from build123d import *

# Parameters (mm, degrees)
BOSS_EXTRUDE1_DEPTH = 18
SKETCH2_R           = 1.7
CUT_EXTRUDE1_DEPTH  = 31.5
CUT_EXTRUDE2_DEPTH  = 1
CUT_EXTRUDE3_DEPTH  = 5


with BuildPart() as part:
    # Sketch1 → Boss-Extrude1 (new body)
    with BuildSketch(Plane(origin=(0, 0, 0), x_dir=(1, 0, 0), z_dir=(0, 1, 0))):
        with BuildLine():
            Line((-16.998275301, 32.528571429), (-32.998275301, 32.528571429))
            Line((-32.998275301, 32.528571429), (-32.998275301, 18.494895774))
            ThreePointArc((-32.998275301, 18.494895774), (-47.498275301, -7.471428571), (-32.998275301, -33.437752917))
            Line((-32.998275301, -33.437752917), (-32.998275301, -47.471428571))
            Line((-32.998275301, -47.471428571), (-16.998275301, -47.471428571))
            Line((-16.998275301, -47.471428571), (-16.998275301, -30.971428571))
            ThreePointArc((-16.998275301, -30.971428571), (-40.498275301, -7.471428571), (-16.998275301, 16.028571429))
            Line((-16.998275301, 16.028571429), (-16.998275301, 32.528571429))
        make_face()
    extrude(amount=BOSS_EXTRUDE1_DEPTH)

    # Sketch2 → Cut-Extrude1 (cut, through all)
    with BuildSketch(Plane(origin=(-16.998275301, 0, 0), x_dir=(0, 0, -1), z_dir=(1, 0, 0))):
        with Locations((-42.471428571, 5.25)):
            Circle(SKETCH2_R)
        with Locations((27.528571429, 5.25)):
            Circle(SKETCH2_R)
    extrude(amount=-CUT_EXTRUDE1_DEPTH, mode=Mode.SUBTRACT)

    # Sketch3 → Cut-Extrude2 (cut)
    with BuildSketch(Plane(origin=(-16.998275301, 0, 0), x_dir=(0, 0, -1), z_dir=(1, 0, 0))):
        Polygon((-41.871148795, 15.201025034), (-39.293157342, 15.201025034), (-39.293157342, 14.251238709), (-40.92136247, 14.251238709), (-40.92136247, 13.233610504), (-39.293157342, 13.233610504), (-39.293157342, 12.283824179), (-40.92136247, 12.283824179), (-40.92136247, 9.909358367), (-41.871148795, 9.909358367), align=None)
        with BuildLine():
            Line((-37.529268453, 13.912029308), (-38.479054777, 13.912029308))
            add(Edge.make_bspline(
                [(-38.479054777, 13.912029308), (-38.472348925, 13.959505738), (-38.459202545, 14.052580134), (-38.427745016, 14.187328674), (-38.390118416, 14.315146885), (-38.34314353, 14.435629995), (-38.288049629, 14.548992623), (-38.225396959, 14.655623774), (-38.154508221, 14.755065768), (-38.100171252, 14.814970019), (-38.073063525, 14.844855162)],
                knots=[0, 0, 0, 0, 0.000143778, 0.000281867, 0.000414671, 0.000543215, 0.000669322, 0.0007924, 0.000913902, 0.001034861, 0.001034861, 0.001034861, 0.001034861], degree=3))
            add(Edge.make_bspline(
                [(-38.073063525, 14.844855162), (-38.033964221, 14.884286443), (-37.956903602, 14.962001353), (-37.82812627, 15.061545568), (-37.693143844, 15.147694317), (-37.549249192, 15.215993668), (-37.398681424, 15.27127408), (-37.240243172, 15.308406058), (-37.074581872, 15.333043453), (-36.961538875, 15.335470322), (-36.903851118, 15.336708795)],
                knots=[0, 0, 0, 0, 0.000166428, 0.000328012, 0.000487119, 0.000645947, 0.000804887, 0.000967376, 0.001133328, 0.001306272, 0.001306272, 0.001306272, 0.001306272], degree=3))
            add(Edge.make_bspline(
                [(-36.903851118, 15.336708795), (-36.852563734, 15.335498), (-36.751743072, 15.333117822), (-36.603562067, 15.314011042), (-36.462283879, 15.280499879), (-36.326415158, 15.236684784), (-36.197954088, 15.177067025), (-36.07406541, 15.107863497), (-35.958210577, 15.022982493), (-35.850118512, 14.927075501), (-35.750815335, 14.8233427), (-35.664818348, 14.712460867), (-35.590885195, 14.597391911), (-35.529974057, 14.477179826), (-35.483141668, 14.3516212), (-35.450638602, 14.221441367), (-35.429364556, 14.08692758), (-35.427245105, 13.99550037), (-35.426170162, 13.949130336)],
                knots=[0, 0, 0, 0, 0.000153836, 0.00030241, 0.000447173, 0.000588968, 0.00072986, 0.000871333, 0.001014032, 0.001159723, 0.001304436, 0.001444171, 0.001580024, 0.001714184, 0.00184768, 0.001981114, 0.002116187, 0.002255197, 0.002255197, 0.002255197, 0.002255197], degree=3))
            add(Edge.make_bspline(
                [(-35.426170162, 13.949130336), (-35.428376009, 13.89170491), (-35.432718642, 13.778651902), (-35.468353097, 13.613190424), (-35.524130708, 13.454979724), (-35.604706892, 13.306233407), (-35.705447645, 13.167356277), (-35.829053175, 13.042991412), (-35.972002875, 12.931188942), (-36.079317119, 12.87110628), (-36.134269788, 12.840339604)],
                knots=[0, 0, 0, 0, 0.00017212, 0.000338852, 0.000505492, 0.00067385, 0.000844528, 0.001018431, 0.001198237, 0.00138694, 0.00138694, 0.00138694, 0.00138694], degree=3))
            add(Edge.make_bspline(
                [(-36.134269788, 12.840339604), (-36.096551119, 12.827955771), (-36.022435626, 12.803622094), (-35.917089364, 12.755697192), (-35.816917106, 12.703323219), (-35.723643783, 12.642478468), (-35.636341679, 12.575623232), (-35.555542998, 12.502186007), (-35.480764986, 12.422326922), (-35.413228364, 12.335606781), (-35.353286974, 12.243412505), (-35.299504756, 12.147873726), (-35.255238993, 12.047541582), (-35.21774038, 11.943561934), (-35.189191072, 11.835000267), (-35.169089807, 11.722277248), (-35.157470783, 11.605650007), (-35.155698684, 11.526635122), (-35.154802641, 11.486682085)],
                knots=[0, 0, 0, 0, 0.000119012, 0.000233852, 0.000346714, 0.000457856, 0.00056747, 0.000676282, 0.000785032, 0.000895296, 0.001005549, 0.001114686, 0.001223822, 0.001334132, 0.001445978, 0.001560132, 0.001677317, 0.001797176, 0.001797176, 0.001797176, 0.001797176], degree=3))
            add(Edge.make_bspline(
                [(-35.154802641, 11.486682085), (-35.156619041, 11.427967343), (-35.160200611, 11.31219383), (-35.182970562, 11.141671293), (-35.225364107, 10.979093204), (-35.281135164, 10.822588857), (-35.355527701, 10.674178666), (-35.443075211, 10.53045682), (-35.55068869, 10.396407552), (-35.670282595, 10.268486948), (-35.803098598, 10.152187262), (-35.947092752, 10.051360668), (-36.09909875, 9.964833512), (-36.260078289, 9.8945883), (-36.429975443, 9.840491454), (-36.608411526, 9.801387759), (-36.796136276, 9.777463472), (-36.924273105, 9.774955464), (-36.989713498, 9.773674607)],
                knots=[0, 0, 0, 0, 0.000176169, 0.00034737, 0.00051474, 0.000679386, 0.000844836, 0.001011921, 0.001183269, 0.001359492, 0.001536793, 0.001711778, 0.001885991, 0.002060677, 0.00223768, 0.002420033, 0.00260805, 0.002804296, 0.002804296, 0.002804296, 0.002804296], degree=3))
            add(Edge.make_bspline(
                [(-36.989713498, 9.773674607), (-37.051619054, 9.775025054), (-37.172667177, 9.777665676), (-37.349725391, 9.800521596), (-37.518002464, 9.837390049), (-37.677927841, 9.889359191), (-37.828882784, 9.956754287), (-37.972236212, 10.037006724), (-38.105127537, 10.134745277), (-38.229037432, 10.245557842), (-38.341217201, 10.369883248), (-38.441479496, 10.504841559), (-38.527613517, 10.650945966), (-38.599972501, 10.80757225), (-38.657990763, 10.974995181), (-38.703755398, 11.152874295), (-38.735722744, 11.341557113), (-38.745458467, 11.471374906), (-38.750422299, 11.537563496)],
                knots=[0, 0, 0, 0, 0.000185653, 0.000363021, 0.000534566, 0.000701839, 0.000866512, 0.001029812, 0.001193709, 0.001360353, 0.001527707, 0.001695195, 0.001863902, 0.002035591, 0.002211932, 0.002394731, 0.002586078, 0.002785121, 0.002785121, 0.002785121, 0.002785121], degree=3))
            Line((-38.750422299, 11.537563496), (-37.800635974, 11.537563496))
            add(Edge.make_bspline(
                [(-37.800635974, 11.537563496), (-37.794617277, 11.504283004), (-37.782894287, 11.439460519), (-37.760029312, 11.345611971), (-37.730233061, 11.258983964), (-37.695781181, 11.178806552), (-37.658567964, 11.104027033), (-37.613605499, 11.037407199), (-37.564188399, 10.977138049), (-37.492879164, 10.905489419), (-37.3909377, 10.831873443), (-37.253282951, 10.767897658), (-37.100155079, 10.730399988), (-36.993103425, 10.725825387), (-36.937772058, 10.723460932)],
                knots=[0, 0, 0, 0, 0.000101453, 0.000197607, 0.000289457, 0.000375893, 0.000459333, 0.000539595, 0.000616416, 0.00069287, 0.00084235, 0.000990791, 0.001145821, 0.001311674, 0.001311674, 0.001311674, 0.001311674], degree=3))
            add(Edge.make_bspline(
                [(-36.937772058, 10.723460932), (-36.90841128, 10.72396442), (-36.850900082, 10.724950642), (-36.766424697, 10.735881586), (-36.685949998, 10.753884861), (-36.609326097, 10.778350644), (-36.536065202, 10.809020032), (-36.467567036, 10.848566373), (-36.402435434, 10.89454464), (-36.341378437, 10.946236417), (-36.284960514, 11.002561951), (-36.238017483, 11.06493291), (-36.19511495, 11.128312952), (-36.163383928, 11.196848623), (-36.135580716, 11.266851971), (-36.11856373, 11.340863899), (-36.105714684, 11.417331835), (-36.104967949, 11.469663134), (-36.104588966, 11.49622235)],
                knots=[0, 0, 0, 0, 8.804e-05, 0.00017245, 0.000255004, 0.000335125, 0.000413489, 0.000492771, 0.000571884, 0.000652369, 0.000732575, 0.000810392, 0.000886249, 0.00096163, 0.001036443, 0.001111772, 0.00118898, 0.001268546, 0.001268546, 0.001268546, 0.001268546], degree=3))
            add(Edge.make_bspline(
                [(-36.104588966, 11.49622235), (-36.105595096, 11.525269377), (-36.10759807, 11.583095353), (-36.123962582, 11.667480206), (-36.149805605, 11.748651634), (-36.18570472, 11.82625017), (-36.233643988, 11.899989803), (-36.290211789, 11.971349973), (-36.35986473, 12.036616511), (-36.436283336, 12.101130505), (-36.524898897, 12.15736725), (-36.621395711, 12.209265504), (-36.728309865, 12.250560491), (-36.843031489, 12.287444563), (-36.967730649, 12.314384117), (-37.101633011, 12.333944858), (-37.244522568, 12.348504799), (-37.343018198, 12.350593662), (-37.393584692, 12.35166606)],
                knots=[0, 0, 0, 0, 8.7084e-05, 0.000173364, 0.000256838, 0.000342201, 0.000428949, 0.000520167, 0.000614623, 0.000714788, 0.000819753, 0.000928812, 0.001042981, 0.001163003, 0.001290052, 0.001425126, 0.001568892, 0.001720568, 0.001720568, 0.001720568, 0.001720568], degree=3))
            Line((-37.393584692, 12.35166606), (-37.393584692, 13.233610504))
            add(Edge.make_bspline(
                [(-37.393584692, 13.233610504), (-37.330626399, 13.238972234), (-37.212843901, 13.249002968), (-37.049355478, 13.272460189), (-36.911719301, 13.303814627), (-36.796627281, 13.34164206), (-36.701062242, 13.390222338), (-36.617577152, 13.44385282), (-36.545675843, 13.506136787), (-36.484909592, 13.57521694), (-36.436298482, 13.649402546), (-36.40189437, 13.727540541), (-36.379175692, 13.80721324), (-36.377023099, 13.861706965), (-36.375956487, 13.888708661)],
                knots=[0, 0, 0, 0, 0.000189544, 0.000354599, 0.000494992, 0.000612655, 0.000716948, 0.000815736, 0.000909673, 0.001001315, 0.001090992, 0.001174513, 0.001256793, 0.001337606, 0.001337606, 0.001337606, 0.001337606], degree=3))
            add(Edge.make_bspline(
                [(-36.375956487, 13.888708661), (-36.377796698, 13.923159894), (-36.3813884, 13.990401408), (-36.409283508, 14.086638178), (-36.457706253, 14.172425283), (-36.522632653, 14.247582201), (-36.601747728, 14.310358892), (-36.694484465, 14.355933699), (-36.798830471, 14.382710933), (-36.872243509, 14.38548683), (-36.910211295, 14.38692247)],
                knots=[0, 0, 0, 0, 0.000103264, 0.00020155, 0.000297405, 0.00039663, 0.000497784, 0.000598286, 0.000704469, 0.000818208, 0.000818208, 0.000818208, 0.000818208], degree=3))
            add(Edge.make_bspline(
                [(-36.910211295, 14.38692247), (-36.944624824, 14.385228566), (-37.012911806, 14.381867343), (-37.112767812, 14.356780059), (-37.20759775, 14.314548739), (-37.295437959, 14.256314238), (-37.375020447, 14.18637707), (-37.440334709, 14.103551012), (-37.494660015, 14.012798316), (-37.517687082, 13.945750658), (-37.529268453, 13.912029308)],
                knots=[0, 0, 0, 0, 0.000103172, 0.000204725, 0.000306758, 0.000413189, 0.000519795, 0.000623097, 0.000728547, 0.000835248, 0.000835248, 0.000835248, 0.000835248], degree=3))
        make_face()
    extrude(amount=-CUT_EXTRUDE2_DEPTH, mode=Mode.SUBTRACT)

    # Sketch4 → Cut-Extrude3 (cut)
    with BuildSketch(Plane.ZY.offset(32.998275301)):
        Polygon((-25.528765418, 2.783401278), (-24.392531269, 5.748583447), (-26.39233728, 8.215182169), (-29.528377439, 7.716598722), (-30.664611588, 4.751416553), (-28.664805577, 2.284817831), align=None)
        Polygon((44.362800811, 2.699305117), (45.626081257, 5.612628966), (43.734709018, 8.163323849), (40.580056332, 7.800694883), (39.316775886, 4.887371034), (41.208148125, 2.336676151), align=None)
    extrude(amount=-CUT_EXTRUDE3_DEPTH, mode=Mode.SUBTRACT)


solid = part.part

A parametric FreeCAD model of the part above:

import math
import FreeCAD as App
import Part
import Sketcher


def add_polygon(sketch, points):
    """Adds a closed chain of lines whose ends are joined by coincident constraints."""
    first, n = sketch.GeometryCount, len(points)
    for a, b in zip(points, points[1:] + points[:1]):
        sketch.addGeometry(Part.LineSegment(App.Vector(*a, 0), App.Vector(*b, 0)), False)
    for i in range(n):
        sketch.addConstraint(Sketcher.Constraint("Coincident", first + i, 2, first + (i + 1) % n, 1))

doc = App.newDocument("Part")
body = doc.addObject("PartDesign::Body", "Body")

sketch1 = body.newObject("Sketcher::SketchObject", "Sketch")
sketch1.AttachmentSupport = (doc.getObject("XZ_Plane"), [""])
sketch1.MapMode = "FlatFace"
sketch1.addGeometry([
    Part.LineSegment(App.Vector(-17, -33, 0), App.Vector(-33, -33, 0)),
    Part.LineSegment(App.Vector(-33, -33, 0), App.Vector(-33, -18, 0)),
    Part.ArcOfCircle(Part.Circle(App.Vector(-17, 7, 0), App.Vector(0, 0, 1), 31), math.radians(122), math.radians(238)),
    Part.LineSegment(App.Vector(-33, 33, 0), App.Vector(-33, 47, 0)),
    Part.LineSegment(App.Vector(-33, 47, 0), App.Vector(-17, 47, 0)),
    Part.LineSegment(App.Vector(-17, 47, 0), App.Vector(-17, 31, 0)),
    Part.ArcOfCircle(Part.Circle(App.Vector(-17, 7, 0), App.Vector(0, 0, 1), 24), math.radians(90), math.radians(270)),
    Part.LineSegment(App.Vector(-17, -16, 0), App.Vector(-17, -33, 0)),
], False)
sketch1.addConstraint([
    Sketcher.Constraint("Coincident", 0, 2, 1, 1),
    Sketcher.Constraint("Coincident", 1, 2, 2, 2),
    Sketcher.Constraint("Coincident", 2, 1, 3, 1),
    Sketcher.Constraint("Coincident", 3, 2, 4, 1),
    Sketcher.Constraint("Coincident", 4, 2, 5, 1),
    Sketcher.Constraint("Coincident", 5, 2, 6, 1),
    Sketcher.Constraint("Coincident", 6, 2, 7, 1),
    Sketcher.Constraint("Coincident", 7, 2, 0, 1),
    Sketcher.Constraint("Horizontal", 0),
    Sketcher.Constraint("Vertical", 1),
    Sketcher.Constraint("Vertical", 3),
    Sketcher.Constraint("Horizontal", 4),
    Sketcher.Constraint("Vertical", 5),
    Sketcher.Constraint("Vertical", 7),
    Sketcher.Constraint("Coincident", 6, 3, 2, 3),
    Sketcher.Constraint("Vertical", 1, 2, 2, 1),
    Sketcher.Constraint("Vertical", 6, 3, 4, 2),
    Sketcher.Constraint("Vertical", 5, 2, 6, 2),
    Sketcher.Constraint("Equal", 1, 3),
    Sketcher.Constraint("Radius", 2, 30.5),
    Sketcher.Constraint("Radius", 6, 23.5),
    Sketcher.Constraint("DistanceX", 0, 2, 0, 1, 16.0),
    Sketcher.Constraint("DistanceY", 5, 2, 5, 1, 16.5),
    Sketcher.Constraint("DistanceY", -1, 1, 2, 3, 7.471429),
    Sketcher.Constraint("DistanceX", 2, 3, -1, 1, 16.998275),
])
pad1 = body.newObject("PartDesign::Pad", "Pad")
pad1.Profile = sketch1
pad1.Length = 18
pad1.Reversed = True

sketch2 = body.newObject("Sketcher::SketchObject", "Sketch001")
sketch2.AttachmentSupport = (doc.getObject("YZ_Plane"), [""])
sketch2.MapMode = "FlatFace"
sketch2.AttachmentOffset = App.Placement(App.Vector(0, 0, -16.998275), App.Rotation())
sketch2.addGeometry([
    Part.Circle(App.Vector(5.2, 42.5, 0), App.Vector(0, 0, 1), 1.7),
    Part.Circle(App.Vector(5.2, -27.5, 0), App.Vector(0, 0, 1), 1.7),
], False)
sketch2.addConstraint([
    Sketcher.Constraint("Equal", 0, 1),
    Sketcher.Constraint("Vertical", 0, 3, 1, 3),
    Sketcher.Constraint("Diameter", 0, 3.4),
    Sketcher.Constraint("DistanceY", 1, 3, 0, 3, 70.0),
    Sketcher.Constraint("DistanceX", -1, 1, 0, 3, 5.25),
    Sketcher.Constraint("DistanceY", -1, 1, 0, 3, 42.471429),
])
pocket1 = body.newObject("PartDesign::Pocket", "Pocket")
pocket1.Profile = sketch2
pocket1.Type = "ThroughAll"

sketch3 = body.newObject("Sketcher::SketchObject", "Sketch002")
sketch3.AttachmentSupport = (doc.getObject("YZ_Plane"), [""])
sketch3.MapMode = "FlatFace"
sketch3.AttachmentOffset = App.Placement(App.Vector(0, 0, -16.998275), App.Rotation())
add_polygon(sketch3, [(15.201025, 39.293157), (15.201025, 41.871149), (9.909358, 41.871149), (9.909358, 40.921362), (12.283824, 40.921362), (12.283824, 39.293157), (13.233611, 39.293157), (13.233611, 40.921362), (14.251239, 40.921362), (14.251239, 39.293157)])
sketch3.addGeometry(Part.LineSegment(App.Vector(13.912029, 38.479055, 0), App.Vector(13.912029, 37.529268, 0)), False)
sketch3.addGeometry(Part.BSplineCurve([App.Vector(14.386922, 36.910211, 0), App.Vector(14.385229, 36.944625, 0), App.Vector(14.381867, 37.012912, 0), App.Vector(14.35678, 37.112768, 0), App.Vector(14.314549, 37.207598, 0), App.Vector(14.256314, 37.295438, 0), App.Vector(14.186377, 37.37502, 0), App.Vector(14.103551, 37.440335, 0), App.Vector(14.012798, 37.49466, 0), App.Vector(13.945751, 37.517687, 0), App.Vector(13.912029, 37.529268, 0)], [4, 1, 1, 1, 1, 1, 1, 1, 4], [0, 0.000103172, 0.000204725, 0.000306758, 0.000413189, 0.000519795, 0.000623097, 0.000728547, 0.000835248], False, 3, [1, 1, 1, 1, 1, 1, 1, 1, 1, 1, 1], False), False)
sketch3.addGeometry(Part.BSplineCurve([App.Vector(13.888709, 36.375956, 0), App.Vector(13.92316, 36.377797, 0), App.Vector(13.990401, 36.381388, 0), App.Vector(14.086638, 36.409284, 0), App.Vector(14.172425, 36.457706, 0), App.Vector(14.247582, 36.522633, 0), App.Vector(14.310359, 36.601748, 0), App.Vector(14.355934, 36.694484, 0), App.Vector(14.382711, 36.79883, 0), App.Vector(14.385487, 36.872244, 0), App.Vector(14.386922, 36.910211, 0)], [4, 1, 1, 1, 1, 1, 1, 1, 4], [0, 0.000103264, 0.00020155, 0.000297405, 0.00039663, 0.000497784, 0.000598286, 0.000704469, 0.000818208], False, 3, [1, 1, 1, 1, 1, 1, 1, 1, 1, 1, 1], False), False)
sketch3.addGeometry(Part.BSplineCurve([App.Vector(13.233611, 37.393585, 0), App.Vector(13.238972, 37.330626, 0), App.Vector(13.249003, 37.212844, 0), App.Vector(13.27246, 37.049355, 0), App.Vector(13.303815, 36.911719, 0), App.Vector(13.341642, 36.796627, 0), App.Vector(13.390222, 36.701062, 0), App.Vector(13.443853, 36.617577, 0), App.Vector(13.506137, 36.545676, 0), App.Vector(13.575217, 36.48491, 0), App.Vector(13.649403, 36.436298, 0), App.Vector(13.727541, 36.401894, 0), App.Vector(13.807213, 36.379176, 0), App.Vector(13.861707, 36.377023, 0), App.Vector(13.888709, 36.375956, 0)], [4, 1, 1, 1, 1, 1, 1, 1, 1, 1, 1, 1, 4], [0, 0.000189544, 0.000354599, 0.000494992, 0.000612655, 0.000716948, 0.000815736, 0.000909673, 0.001001315, 0.001090992, 0.001174513, 0.001256793, 0.001337606], False, 3, [1, 1, 1, 1, 1, 1, 1, 1, 1, 1, 1, 1, 1, 1, 1], False), False)
sketch3.addGeometry(Part.LineSegment(App.Vector(13.233611, 37.393585, 0), App.Vector(12.351666, 37.393585, 0)), False)
sketch3.addGeometry(Part.BSplineCurve([App.Vector(11.496222, 36.104589, 0), App.Vector(11.525269, 36.105595, 0), App.Vector(11.583095, 36.107598, 0), App.Vector(11.66748, 36.123963, 0), App.Vector(11.748652, 36.149806, 0), App.Vector(11.82625, 36.185705, 0), App.Vector(11.89999, 36.233644, 0), App.Vector(11.97135, 36.290212, 0), App.Vector(12.036617, 36.359865, 0), App.Vector(12.101131, 36.436283, 0), App.Vector(12.157367, 36.524899, 0), App.Vector(12.209266, 36.621396, 0), App.Vector(12.25056, 36.72831, 0), App.Vector(12.287445, 36.843031, 0), App.Vector(12.314384, 36.967731, 0), App.Vector(12.333945, 37.101633, 0), App.Vector(12.348505, 37.244523, 0), App.Vector(12.350594, 37.343018, 0), App.Vector(12.351666, 37.393585, 0)], [4, 1, 1, 1, 1, 1, 1, 1, 1, 1, 1, 1, 1, 1, 1, 1, 4], [0, 0.000087084, 0.000173364, 0.000256838, 0.000342201, 0.000428949, 0.000520167, 0.000614623, 0.000714788, 0.000819753, 0.000928812, 0.001042981, 0.001163003, 0.001290052, 0.001425126, 0.001568892, 0.001720568], False, 3, [1, 1, 1, 1, 1, 1, 1, 1, 1, 1, 1, 1, 1, 1, 1, 1, 1, 1, 1], False), False)
sketch3.addGeometry(Part.BSplineCurve([App.Vector(10.723461, 36.937772, 0), App.Vector(10.723964, 36.908411, 0), App.Vector(10.724951, 36.8509, 0), App.Vector(10.735882, 36.766425, 0), App.Vector(10.753885, 36.68595, 0), App.Vector(10.778351, 36.609326, 0), App.Vector(10.80902, 36.536065, 0), App.Vector(10.848566, 36.467567, 0), App.Vector(10.894545, 36.402435, 0), App.Vector(10.946236, 36.341378, 0), App.Vector(11.002562, 36.284961, 0), App.Vector(11.064933, 36.238017, 0), App.Vector(11.128313, 36.195115, 0), App.Vector(11.196849, 36.163384, 0), App.Vector(11.266852, 36.135581, 0), App.Vector(11.340864, 36.118564, 0), App.Vector(11.417332, 36.105715, 0), App.Vector(11.469663, 36.104968, 0), App.Vector(11.496222, 36.104589, 0)], [4, 1, 1, 1, 1, 1, 1, 1, 1, 1, 1, 1, 1, 1, 1, 1, 4], [0, 0.00008804, 0.00017245, 0.000255004, 0.000335125, 0.000413489, 0.000492771, 0.000571884, 0.000652369, 0.000732575, 0.000810392, 0.000886249, 0.00096163, 0.001036443, 0.001111772, 0.00118898, 0.001268546], False, 3, [1, 1, 1, 1, 1, 1, 1, 1, 1, 1, 1, 1, 1, 1, 1, 1, 1, 1, 1], False), False)
sketch3.addGeometry(Part.BSplineCurve([App.Vector(11.537563, 37.800636, 0), App.Vector(11.504283, 37.794617, 0), App.Vector(11.439461, 37.782894, 0), App.Vector(11.345612, 37.760029, 0), App.Vector(11.258984, 37.730233, 0), App.Vector(11.178807, 37.695781, 0), App.Vector(11.104027, 37.658568, 0), App.Vector(11.037407, 37.613605, 0), App.Vector(10.977138, 37.564188, 0), App.Vector(10.905489, 37.492879, 0), App.Vector(10.831873, 37.390938, 0), App.Vector(10.767898, 37.253283, 0), App.Vector(10.7304, 37.100155, 0), App.Vector(10.725825, 36.993103, 0), App.Vector(10.723461, 36.937772, 0)], [4, 1, 1, 1, 1, 1, 1, 1, 1, 1, 1, 1, 4], [0, 0.000101453, 0.000197607, 0.000289457, 0.000375893, 0.000459333, 0.000539595, 0.000616416, 0.00069287, 0.00084235, 0.000990791, 0.001145821, 0.001311674], False, 3, [1, 1, 1, 1, 1, 1, 1, 1, 1, 1, 1, 1, 1, 1, 1], False), False)
sketch3.addGeometry(Part.LineSegment(App.Vector(11.537563, 37.800636, 0), App.Vector(11.537563, 38.750422, 0)), False)
sketch3.addGeometry(Part.BSplineCurve([App.Vector(9.773675, 36.989713, 0), App.Vector(9.775025, 37.051619, 0), App.Vector(9.777666, 37.172667, 0), App.Vector(9.800522, 37.349725, 0), App.Vector(9.83739, 37.518002, 0), App.Vector(9.889359, 37.677928, 0), App.Vector(9.956754, 37.828883, 0), App.Vector(10.037007, 37.972236, 0), App.Vector(10.134745, 38.105128, 0), App.Vector(10.245558, 38.229037, 0), App.Vector(10.369883, 38.341217, 0), App.Vector(10.504842, 38.441479, 0), App.Vector(10.650946, 38.527614, 0), App.Vector(10.807572, 38.599973, 0), App.Vector(10.974995, 38.657991, 0), App.Vector(11.152874, 38.703755, 0), App.Vector(11.341557, 38.735723, 0), App.Vector(11.471375, 38.745458, 0), App.Vector(11.537563, 38.750422, 0)], [4, 1, 1, 1, 1, 1, 1, 1, 1, 1, 1, 1, 1, 1, 1, 1, 4], [0, 0.000185653, 0.000363021, 0.000534566, 0.000701839, 0.000866512, 0.001029812, 0.001193709, 0.001360353, 0.001527707, 0.001695195, 0.001863902, 0.002035591, 0.002211932, 0.002394731, 0.002586078, 0.002785121], False, 3, [1, 1, 1, 1, 1, 1, 1, 1, 1, 1, 1, 1, 1, 1, 1, 1, 1, 1, 1], False), False)
sketch3.addGeometry(Part.BSplineCurve([App.Vector(11.486682, 35.154803, 0), App.Vector(11.427967, 35.156619, 0), App.Vector(11.312194, 35.160201, 0), App.Vector(11.141671, 35.182971, 0), App.Vector(10.979093, 35.225364, 0), App.Vector(10.822589, 35.281135, 0), App.Vector(10.674179, 35.355528, 0), App.Vector(10.530457, 35.443075, 0), App.Vector(10.396408, 35.550689, 0), App.Vector(10.268487, 35.670283, 0), App.Vector(10.152187, 35.803099, 0), App.Vector(10.051361, 35.947093, 0), App.Vector(9.964834, 36.099099, 0), App.Vector(9.894588, 36.260078, 0), App.Vector(9.840491, 36.429975, 0), App.Vector(9.801388, 36.608412, 0), App.Vector(9.777463, 36.796136, 0), App.Vector(9.774955, 36.924273, 0), App.Vector(9.773675, 36.989713, 0)], [4, 1, 1, 1, 1, 1, 1, 1, 1, 1, 1, 1, 1, 1, 1, 1, 4], [0, 0.000176169, 0.00034737, 0.00051474, 0.000679386, 0.000844836, 0.001011921, 0.001183269, 0.001359492, 0.001536793, 0.001711778, 0.001885991, 0.002060677, 0.00223768, 0.002420033, 0.00260805, 0.002804296], False, 3, [1, 1, 1, 1, 1, 1, 1, 1, 1, 1, 1, 1, 1, 1, 1, 1, 1, 1, 1], False), False)
sketch3.addGeometry(Part.BSplineCurve([App.Vector(12.84034, 36.13427, 0), App.Vector(12.827956, 36.096551, 0), App.Vector(12.803622, 36.022436, 0), App.Vector(12.755697, 35.917089, 0), App.Vector(12.703323, 35.816917, 0), App.Vector(12.642478, 35.723644, 0), App.Vector(12.575623, 35.636342, 0), App.Vector(12.502186, 35.555543, 0), App.Vector(12.422327, 35.480765, 0), App.Vector(12.335607, 35.413228, 0), App.Vector(12.243413, 35.353287, 0), App.Vector(12.147874, 35.299505, 0), App.Vector(12.047542, 35.255239, 0), App.Vector(11.943562, 35.21774, 0), App.Vector(11.835, 35.189191, 0), App.Vector(11.722277, 35.16909, 0), App.Vector(11.60565, 35.157471, 0), App.Vector(11.526635, 35.155699, 0), App.Vector(11.486682, 35.154803, 0)], [4, 1, 1, 1, 1, 1, 1, 1, 1, 1, 1, 1, 1, 1, 1, 1, 4], [0, 0.000119012, 0.000233852, 0.000346714, 0.000457856, 0.00056747, 0.000676282, 0.000785032, 0.000895296, 0.001005549, 0.001114686, 0.001223822, 0.001334132, 0.001445978, 0.001560132, 0.001677317, 0.001797176], False, 3, [1, 1, 1, 1, 1, 1, 1, 1, 1, 1, 1, 1, 1, 1, 1, 1, 1, 1, 1], False), False)
sketch3.addGeometry(Part.BSplineCurve([App.Vector(13.94913, 35.42617, 0), App.Vector(13.891705, 35.428376, 0), App.Vector(13.778652, 35.432719, 0), App.Vector(13.61319, 35.468353, 0), App.Vector(13.45498, 35.524131, 0), App.Vector(13.306233, 35.604707, 0), App.Vector(13.167356, 35.705448, 0), App.Vector(13.042991, 35.829053, 0), App.Vector(12.931189, 35.972003, 0), App.Vector(12.871106, 36.079317, 0), App.Vector(12.84034, 36.13427, 0)], [4, 1, 1, 1, 1, 1, 1, 1, 4], [0, 0.00017212, 0.000338852, 0.000505492, 0.00067385, 0.000844528, 0.001018431, 0.001198237, 0.00138694], False, 3, [1, 1, 1, 1, 1, 1, 1, 1, 1, 1, 1], False), False)
sketch3.addGeometry(Part.BSplineCurve([App.Vector(15.336709, 36.903851, 0), App.Vector(15.335498, 36.852564, 0), App.Vector(15.333118, 36.751743, 0), App.Vector(15.314011, 36.603562, 0), App.Vector(15.2805, 36.462284, 0), App.Vector(15.236685, 36.326415, 0), App.Vector(15.177067, 36.197954, 0), App.Vector(15.107863, 36.074065, 0), App.Vector(15.022982, 35.958211, 0), App.Vector(14.927076, 35.850119, 0), App.Vector(14.823343, 35.750815, 0), App.Vector(14.712461, 35.664818, 0), App.Vector(14.597392, 35.590885, 0), App.Vector(14.47718, 35.529974, 0), App.Vector(14.351621, 35.483142, 0), App.Vector(14.221441, 35.450639, 0), App.Vector(14.086928, 35.429365, 0), App.Vector(13.9955, 35.427245, 0), App.Vector(13.94913, 35.42617, 0)], [4, 1, 1, 1, 1, 1, 1, 1, 1, 1, 1, 1, 1, 1, 1, 1, 4], [0, 0.000153836, 0.00030241, 0.000447173, 0.000588968, 0.00072986, 0.000871333, 0.001014032, 0.001159723, 0.001304436, 0.001444171, 0.001580024, 0.001714184, 0.00184768, 0.001981114, 0.002116187, 0.002255197], False, 3, [1, 1, 1, 1, 1, 1, 1, 1, 1, 1, 1, 1, 1, 1, 1, 1, 1, 1, 1], False), False)
sketch3.addGeometry(Part.BSplineCurve([App.Vector(14.844855, 38.073064, 0), App.Vector(14.884286, 38.033964, 0), App.Vector(14.962001, 37.956904, 0), App.Vector(15.061546, 37.828126, 0), App.Vector(15.147694, 37.693144, 0), App.Vector(15.215994, 37.549249, 0), App.Vector(15.271274, 37.398681, 0), App.Vector(15.308406, 37.240243, 0), App.Vector(15.333043, 37.074582, 0), App.Vector(15.33547, 36.961539, 0), App.Vector(15.336709, 36.903851, 0)], [4, 1, 1, 1, 1, 1, 1, 1, 4], [0, 0.000166428, 0.000328012, 0.000487119, 0.000645947, 0.000804887, 0.000967376, 0.001133328, 0.001306272], False, 3, [1, 1, 1, 1, 1, 1, 1, 1, 1, 1, 1], False), False)
sketch3.addGeometry(Part.BSplineCurve([App.Vector(13.912029, 38.479055, 0), App.Vector(13.959506, 38.472349, 0), App.Vector(14.05258, 38.459203, 0), App.Vector(14.187329, 38.427745, 0), App.Vector(14.315147, 38.390118, 0), App.Vector(14.43563, 38.343144, 0), App.Vector(14.548993, 38.28805, 0), App.Vector(14.655624, 38.225397, 0), App.Vector(14.755066, 38.154508, 0), App.Vector(14.81497, 38.100171, 0), App.Vector(14.844855, 38.073064, 0)], [4, 1, 1, 1, 1, 1, 1, 1, 4], [0, 0.000143778, 0.000281867, 0.000414671, 0.000543215, 0.000669322, 0.0007924, 0.000913902, 0.001034861], False, 3, [1, 1, 1, 1, 1, 1, 1, 1, 1, 1, 1], False), False)
sketch3.addConstraint([
    Sketcher.Constraint("Block", 11),
    Sketcher.Constraint("Block", 12),
    Sketcher.Constraint("Block", 13),
    Sketcher.Constraint("Block", 15),
    Sketcher.Constraint("Block", 16),
    Sketcher.Constraint("Block", 17),
    Sketcher.Constraint("Block", 19),
    Sketcher.Constraint("Block", 20),
    Sketcher.Constraint("Block", 21),
    Sketcher.Constraint("Block", 22),
    Sketcher.Constraint("Block", 23),
    Sketcher.Constraint("Block", 24),
    Sketcher.Constraint("Block", 25),
    Sketcher.Constraint("Coincident", 10, 2, 11, 2),
    Sketcher.Constraint("Coincident", 13, 1, 14, 1),
    Sketcher.Constraint("Coincident", 14, 2, 15, 2),
    Sketcher.Constraint("Coincident", 17, 1, 18, 1),
    Sketcher.Constraint("Coincident", 18, 2, 19, 2),
    Sketcher.Constraint("Coincident", 25, 1, 10, 1),
    Sketcher.Constraint("Vertical", 0),
    Sketcher.Constraint("Horizontal", 1),
    Sketcher.Constraint("Vertical", 2),
    Sketcher.Constraint("Horizontal", 3),
    Sketcher.Constraint("Vertical", 4),
    Sketcher.Constraint("Horizontal", 5),
    Sketcher.Constraint("Vertical", 6),
    Sketcher.Constraint("Horizontal", 7),
    Sketcher.Constraint("Vertical", 8),
    Sketcher.Constraint("Horizontal", 9),
    Sketcher.Constraint("Horizontal", 3, 2, 6, 2),
    Sketcher.Constraint("Horizontal", 5, 2, 8, 2),
    Sketcher.Constraint("Equal", 5, 9),
    Sketcher.Constraint("Equal", 9, 2),
    Sketcher.Constraint("Equal", 2, 10),
    Sketcher.Constraint("DistanceX", 7, 1, 7, 2, 1.017628),
    Sketcher.Constraint("DistanceY", 0, 1, 0, 2, 2.577991),
    Sketcher.Constraint("DistanceX", 1, 2, 1, 1, 5.291667),
    Sketcher.Constraint("DistanceY", -1, 1, 0, 2, 41.871149),
    Sketcher.Constraint("DistanceX", -1, 1, 1, 2, 9.909358),
])
pocket2 = body.newObject("PartDesign::Pocket", "Pocket001")
pocket2.Profile = sketch3
pocket2.Length = 1

sketch4 = body.newObject("Sketcher::SketchObject", "Sketch003")
sketch4.AttachmentSupport = (doc.getObject("YZ_Plane"), [""])
sketch4.MapMode = "FlatFace"
sketch4.AttachmentOffset = App.Placement(App.Vector(0, 0, -32.998275), App.Rotation())
add_polygon(sketch4, [(2.8, -25.5), (5.7, -24.4), (8.2, -26.4), (7.7, -29.5), (4.8, -30.7), (2.3, -28.7)])
add_polygon(sketch4, [(2.7, 44.4), (5.6, 45.6), (8.2, 43.7), (7.8, 40.6), (4.9, 39.3), (2.3, 41.2)])
sketch4.addConstraint([
    Sketcher.Constraint("Parallel", 0, 3),
    Sketcher.Constraint("Parallel", 1, 4),
    Sketcher.Constraint("Parallel", 2, 5),
    Sketcher.Constraint("Parallel", 6, 9),
    Sketcher.Constraint("Parallel", 7, 10),
    Sketcher.Constraint("Parallel", 8, 11),
    Sketcher.Constraint("Equal", 0, 1),
    Sketcher.Constraint("Equal", 1, 2),
    Sketcher.Constraint("Equal", 2, 3),
    Sketcher.Constraint("Equal", 5, 6),
    Sketcher.Constraint("Equal", 6, 7),
    Sketcher.Constraint("Equal", 7, 8),
    Sketcher.Constraint("Equal", 8, 9),
    Sketcher.Constraint("DistanceX", -1, 1, 2, 2, 7.716599),
    Sketcher.Constraint("DistanceX", -1, 1, 5, 2, 2.783401),
    Sketcher.Constraint("DistanceY", -1, 1, 11, 2, 44.362801),
    Sketcher.Constraint("DistanceX", 0, 2, 1, 2, 2.466599),
    Sketcher.Constraint("DistanceY", 0, 2, -1, 1, 24.392531),
    Sketcher.Constraint("DistanceY", 3, 2, -1, 1, 30.664612),
    Sketcher.Constraint("DistanceX", -1, 1, 6, 2, 5.612629),
    Sketcher.Constraint("DistanceY", -1, 1, 6, 2, 45.626081),
    Sketcher.Constraint("DistanceY", -1, 1, 7, 2, 43.734709),
    Sketcher.Constraint("DistanceX", -1, 1, 9, 2, 4.887371),
    Sketcher.Constraint("DistanceY", -1, 1, 10, 2, 41.208148),
])
pocket3 = body.newObject("PartDesign::Pocket", "Pocket002")
pocket3.Profile = sketch4
pocket3.Length = 5
pocket3.Reversed = True

doc.recompute()
